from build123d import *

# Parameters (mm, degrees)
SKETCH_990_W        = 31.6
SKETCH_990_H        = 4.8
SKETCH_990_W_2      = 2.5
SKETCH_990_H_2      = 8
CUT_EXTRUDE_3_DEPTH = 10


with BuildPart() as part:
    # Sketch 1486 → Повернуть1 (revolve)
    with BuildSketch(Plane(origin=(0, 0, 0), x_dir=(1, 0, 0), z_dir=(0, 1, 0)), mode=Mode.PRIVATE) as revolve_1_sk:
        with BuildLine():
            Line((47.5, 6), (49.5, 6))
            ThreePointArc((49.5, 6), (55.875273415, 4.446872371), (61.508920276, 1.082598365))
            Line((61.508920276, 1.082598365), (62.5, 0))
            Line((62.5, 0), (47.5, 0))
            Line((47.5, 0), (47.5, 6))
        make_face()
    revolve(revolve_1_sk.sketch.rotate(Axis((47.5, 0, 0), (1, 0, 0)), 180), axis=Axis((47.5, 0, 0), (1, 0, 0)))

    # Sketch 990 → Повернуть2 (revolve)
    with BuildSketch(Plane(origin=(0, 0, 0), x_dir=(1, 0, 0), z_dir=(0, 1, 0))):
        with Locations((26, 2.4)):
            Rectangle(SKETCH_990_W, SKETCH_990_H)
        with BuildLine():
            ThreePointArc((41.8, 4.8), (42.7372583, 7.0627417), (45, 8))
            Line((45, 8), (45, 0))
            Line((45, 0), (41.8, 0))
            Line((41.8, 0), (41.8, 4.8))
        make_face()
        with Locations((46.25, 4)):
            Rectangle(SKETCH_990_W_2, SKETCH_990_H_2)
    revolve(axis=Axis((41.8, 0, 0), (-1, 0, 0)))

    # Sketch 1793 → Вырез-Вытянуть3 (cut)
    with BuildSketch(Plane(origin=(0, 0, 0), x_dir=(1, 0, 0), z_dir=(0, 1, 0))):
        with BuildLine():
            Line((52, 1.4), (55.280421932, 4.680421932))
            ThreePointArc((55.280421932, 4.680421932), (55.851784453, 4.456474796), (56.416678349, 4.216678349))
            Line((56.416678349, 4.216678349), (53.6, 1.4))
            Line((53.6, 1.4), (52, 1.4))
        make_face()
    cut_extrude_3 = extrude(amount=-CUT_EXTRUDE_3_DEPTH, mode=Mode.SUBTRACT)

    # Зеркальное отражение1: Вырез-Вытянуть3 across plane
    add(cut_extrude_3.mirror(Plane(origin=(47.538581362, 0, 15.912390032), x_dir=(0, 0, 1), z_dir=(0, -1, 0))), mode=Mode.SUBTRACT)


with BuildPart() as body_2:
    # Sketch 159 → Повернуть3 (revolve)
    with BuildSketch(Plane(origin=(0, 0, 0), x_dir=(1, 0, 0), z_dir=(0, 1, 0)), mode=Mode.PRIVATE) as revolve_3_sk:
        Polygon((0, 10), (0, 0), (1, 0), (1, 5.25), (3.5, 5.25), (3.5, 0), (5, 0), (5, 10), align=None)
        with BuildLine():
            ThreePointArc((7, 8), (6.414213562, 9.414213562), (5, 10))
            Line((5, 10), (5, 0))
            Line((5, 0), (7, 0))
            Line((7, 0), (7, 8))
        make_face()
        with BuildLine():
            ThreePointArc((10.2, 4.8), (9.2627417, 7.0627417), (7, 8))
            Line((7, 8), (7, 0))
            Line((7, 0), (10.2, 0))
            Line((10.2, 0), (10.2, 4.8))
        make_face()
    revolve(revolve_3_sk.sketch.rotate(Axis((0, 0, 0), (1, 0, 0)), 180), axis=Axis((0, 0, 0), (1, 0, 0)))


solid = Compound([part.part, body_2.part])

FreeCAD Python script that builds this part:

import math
import FreeCAD as App
import Part
import Sketcher

V = App.Vector
Q = App.Units.Quantity

doc = App.newDocument("Part")
body = doc.addObject("PartDesign::Body", "Body")

# Sketch on XZ plane
sketch1 = body.newObject("Sketcher::SketchObject", "Sketch")
sketch1.AttachmentSupport = (doc.getObject("XZ_Plane"), [""])
sketch1.MapMode = "FlatFace"
sketch1.addGeometry([
    Part.LineSegment(V(49.5, -6, 0), V(47.5, -6, 0)),  # 0
    Part.LineSegment(V(47.5, -6, 0), V(47.5, 0, 0)),  # 1
    Part.LineSegment(V(47.5, 0, 0), V(62.5, 0, 0)),  # 2
    Part.LineSegment(V(62.5, 0, 0), V(61.5, -1.1, 0)),  # 3
    Part.ArcOfCircle(Part.Circle(V(47.5, 15.9, 0), V(0, 0, 1), 22), math.radians(-85), math.radians(-51)),  # 4
], False)
sketch1.addConstraint([
    Sketcher.Constraint("Coincident", 0, 2, 1, 1),
    Sketcher.Constraint("Coincident", 1, 2, 2, 1),
    Sketcher.Constraint("Coincident", 2, 2, 3, 1),
    Sketcher.Constraint("Coincident", 3, 2, 4, 2),
    Sketcher.Constraint("Coincident", 4, 1, 0, 1),
    Sketcher.Constraint("Horizontal", 0),
    Sketcher.Constraint("Vertical", 1),
    Sketcher.Constraint("Horizontal", 2),
    Sketcher.Constraint("PointOnObject", 1, 2, -1),
    Sketcher.Constraint("Radius", 4, 22.0),
    Sketcher.Constraint("DistanceX", 0, 2, 0, 1, 2.0),
    Sketcher.Constraint("DistanceX", 2, 1, 2, 2, 15.0),
    Sketcher.Constraint("DistanceY", 1, 1, 1, 2, 6.0),
    Sketcher.Constraint("DistanceX", -1, 1, 0, 2, 47.5),
    Sketcher.Constraint("DistanceY", 3, 2, -1, 1, 1.082598),
    Sketcher.Constraint("Distance", 3, 1.467739),
])
revolution = body.newObject("PartDesign::Revolution", "Revolution")
revolution.Profile = sketch1
revolution.ReferenceAxis = (sketch1, ["H_Axis"])
revolution.Angle = 360

# Sketch on XZ plane
sketch2 = body.newObject("Sketcher::SketchObject", "Sketch001")
sketch2.AttachmentSupport = (doc.getObject("XZ_Plane"), [""])
sketch2.MapMode = "FlatFace"
sketch2.addGeometry([
    Part.LineSegment(V(10.2, -4.8, 0), V(10.2, 0, 0)),  # 0
    Part.LineSegment(V(10.2, 0, 0), V(47.5, 0, 0)),  # 1
    Part.LineSegment(V(47.5, 0, 0), V(47.5, -8, 0)),  # 2
    Part.LineSegment(V(47.5, -8, 0), V(45, -8, 0)),  # 3
    Part.ArcOfCircle(Part.Circle(V(45, -4.8, 0), V(0, 0, 1), 3.2), math.radians(180), math.radians(270)),  # 4
    Part.LineSegment(V(41.8, -4.8, 0), V(10.2, -4.8, 0)),  # 5
], False)
sketch2.addConstraint([
    Sketcher.Constraint("Coincident", 0, 2, 1, 1),
    Sketcher.Constraint("Coincident", 1, 2, 2, 1),
    Sketcher.Constraint("Coincident", 2, 2, 3, 1),
    Sketcher.Constraint("Tangent", 3, 2, 4, 2),
    Sketcher.Constraint("Coincident", 4, 1, 5, 1),
    Sketcher.Constraint("Coincident", 5, 2, 0, 1),
    Sketcher.Constraint("Vertical", 0),
    Sketcher.Constraint("Horizontal", 1),
    Sketcher.Constraint("Vertical", 2),
    Sketcher.Constraint("Horizontal", 3),
    Sketcher.Constraint("Horizontal", 5),
    Sketcher.Constraint("PointOnObject", 0, 2, -1),
    Sketcher.Constraint("Radius", 4, 3.2),
    Sketcher.Constraint("DistanceY", 2, 2, 2, 1, 8.0),
    Sketcher.Constraint("DistanceX", 1, 1, 1, 2, 37.3),
    Sketcher.Constraint("DistanceX", 3, 2, 3, 1, 2.5),
    Sketcher.Constraint("DistanceY", 0, 1, 0, 2, 4.8),
    Sketcher.Constraint("DistanceX", -1, 1, 4, 3, 45.0),
])
revolution2 = body.newObject("PartDesign::Revolution", "Revolution001")
revolution2.Profile = sketch2
revolution2.ReferenceAxis = (sketch2, ["H_Axis"])
revolution2.Angle = 360

# Sketch on XZ plane
sketch3 = body.newObject("Sketcher::SketchObject", "Sketch002")
sketch3.AttachmentSupport = (doc.getObject("XZ_Plane"), [""])
sketch3.MapMode = "FlatFace"
sketch3.addGeometry([
    Part.LineSegment(V(55.3, -4.7, 0), V(52, -1.4, 0)),
    Part.LineSegment(V(52, -1.4, 0), V(53.6, -1.4, 0)),
    Part.LineSegment(V(53.6, -1.4, 0), V(56.4, -4.2, 0)),
    Part.ArcOfCircle(Part.Circle(V(47.5, 15.9, 0), V(0, 0, 1), 22), math.radians(-69.4), math.radians(-66.2)),
], False)
sketch3.addConstraint([
    Sketcher.Constraint("Coincident", 0, 2, 1, 1),
    Sketcher.Constraint("Coincident", 1, 2, 2, 1),
    Sketcher.Constraint("Coincident", 2, 2, 3, 2),
    Sketcher.Constraint("Coincident", 3, 1, 0, 1),
    Sketcher.Constraint("Horizontal", 1),
    Sketcher.Constraint("Parallel", 0, 2),
    Sketcher.Constraint("Radius", 3, 21.999999),
    Sketcher.Constraint("Angle", 0, Q("135 deg")),
    Sketcher.Constraint("DistanceX", 1, 1, 1, 2, 1.6),
    Sketcher.Constraint("DistanceX", -1, 1, 0, 2, 52.0),
    Sketcher.Constraint("DistanceY", 0, 2, -1, 1, 1.4),
    Sketcher.Constraint("DistanceX", -1, 1, 3, 3, 47.538582),
    Sketcher.Constraint("DistanceY", -1, 1, 3, 3, 15.912389),
])
pocket1 = body.newObject("PartDesign::Pocket", "Pocket")
pocket1.Profile = sketch3
pocket1.Length = 10
pocket1.Reversed = True
doc.recompute()

mirrored = body.newObject("PartDesign::Mirrored", "Mirrored")
mirrored.Originals = [pocket1]
mirrored.MirrorPlane = (doc.getObject("XZ_Plane"), [""])
body.Tip = mirrored
body2 = doc.addObject("PartDesign::Body", "Body001")

# Sketch on XZ plane
sketch4 = body2.newObject("Sketcher::SketchObject", "Sketch003")
sketch4.AttachmentSupport = (doc.getObject("XZ_Plane001"), [""])
sketch4.MapMode = "FlatFace"
sketch4.addGeometry([
    Part.LineSegment(V(0, -10, 0), V(0, 0, 0)),  # 0
    Part.LineSegment(V(0, 0, 0), V(1, 0, 0)),  # 1
    Part.LineSegment(V(1, 0, 0), V(1, -5.2, 0)),  # 2
    Part.LineSegment(V(1, -5.2, 0), V(3.5, -5.2, 0)),  # 3
    Part.LineSegment(V(3.5, -5.2, 0), V(3.5, 0, 0)),  # 4
    Part.LineSegment(V(3.5, 0, 0), V(10.2, 0, 0)),  # 5
    Part.LineSegment(V(10.2, 0, 0), V(10.2, -4.8, 0)),  # 6
    Part.ArcOfCircle(Part.Circle(V(7, -4.8, 0), V(0, 0, 1), 3.2), math.radians(-90), math.radians(0)),  # 7
    Part.ArcOfCircle(Part.Circle(V(5, -8, 0), V(0, 0, 1), 2), math.radians(-90), math.radians(0)),  # 8
    Part.LineSegment(V(5, -10, 0), V(0, -10, 0)),  # 9
], False)
sketch4.addConstraint([
    Sketcher.Constraint("Coincident", 0, 2, 1, 1),
    Sketcher.Constraint("Coincident", 1, 2, 2, 1),
    Sketcher.Constraint("Coincident", 2, 2, 3, 1),
    Sketcher.Constraint("Coincident", 3, 2, 4, 1),
    Sketcher.Constraint("Coincident", 4, 2, 5, 1),
    Sketcher.Constraint("Coincident", 5, 2, 6, 1),
    Sketcher.Constraint("Tangent", 6, 2, 7, 2),
    Sketcher.Constraint("Coincident", 7, 1, 8, 2),
    Sketcher.Constraint("Tangent", 8, 1, 9, 1),
    Sketcher.Constraint("Coincident", 9, 2, 0, 1),
    Sketcher.Constraint("Vertical", 0),
    Sketcher.Constraint("Horizontal", 1),
    Sketcher.Constraint("Vertical", 2),
    Sketcher.Constraint("Horizontal", 3),
    Sketcher.Constraint("Vertical", 4),
    Sketcher.Constraint("Horizontal", 5),
    Sketcher.Constraint("Vertical", 6),
    Sketcher.Constraint("Horizontal", 9),
    Sketcher.Constraint("Coincident", 0, 2, -1, 1),
    Sketcher.Constraint("PointOnObject", 4, 2, -1),
    Sketcher.Constraint("Horizontal", 8, 3, 7, 1),
    Sketcher.Constraint("Radius", 8, 2.0),
    Sketcher.Constraint("Radius", 7, 3.2),
    Sketcher.Constraint("DistanceX", 1, 1, 1, 2, 1.0),
    Sketcher.Constraint("DistanceX", 9, 2, 9, 1, 5.0),
    Sketcher.Constraint("DistanceY", 0, 1, 0, 2, 10.0),
    Sketcher.Constraint("DistanceX", 3, 1, 3, 2, 2.5),
    Sketcher.Constraint("DistanceX", 5, 1, 5, 2, 6.7),
    Sketcher.Constraint("DistanceY", 2, 2, 2, 1, 5.25),
])
revolution3 = body2.newObject("PartDesign::Revolution", "Revolution002")
revolution3.Profile = sketch4
revolution3.ReferenceAxis = (sketch4, ["H_Axis"])
revolution3.Angle = 360

doc.recompute()
